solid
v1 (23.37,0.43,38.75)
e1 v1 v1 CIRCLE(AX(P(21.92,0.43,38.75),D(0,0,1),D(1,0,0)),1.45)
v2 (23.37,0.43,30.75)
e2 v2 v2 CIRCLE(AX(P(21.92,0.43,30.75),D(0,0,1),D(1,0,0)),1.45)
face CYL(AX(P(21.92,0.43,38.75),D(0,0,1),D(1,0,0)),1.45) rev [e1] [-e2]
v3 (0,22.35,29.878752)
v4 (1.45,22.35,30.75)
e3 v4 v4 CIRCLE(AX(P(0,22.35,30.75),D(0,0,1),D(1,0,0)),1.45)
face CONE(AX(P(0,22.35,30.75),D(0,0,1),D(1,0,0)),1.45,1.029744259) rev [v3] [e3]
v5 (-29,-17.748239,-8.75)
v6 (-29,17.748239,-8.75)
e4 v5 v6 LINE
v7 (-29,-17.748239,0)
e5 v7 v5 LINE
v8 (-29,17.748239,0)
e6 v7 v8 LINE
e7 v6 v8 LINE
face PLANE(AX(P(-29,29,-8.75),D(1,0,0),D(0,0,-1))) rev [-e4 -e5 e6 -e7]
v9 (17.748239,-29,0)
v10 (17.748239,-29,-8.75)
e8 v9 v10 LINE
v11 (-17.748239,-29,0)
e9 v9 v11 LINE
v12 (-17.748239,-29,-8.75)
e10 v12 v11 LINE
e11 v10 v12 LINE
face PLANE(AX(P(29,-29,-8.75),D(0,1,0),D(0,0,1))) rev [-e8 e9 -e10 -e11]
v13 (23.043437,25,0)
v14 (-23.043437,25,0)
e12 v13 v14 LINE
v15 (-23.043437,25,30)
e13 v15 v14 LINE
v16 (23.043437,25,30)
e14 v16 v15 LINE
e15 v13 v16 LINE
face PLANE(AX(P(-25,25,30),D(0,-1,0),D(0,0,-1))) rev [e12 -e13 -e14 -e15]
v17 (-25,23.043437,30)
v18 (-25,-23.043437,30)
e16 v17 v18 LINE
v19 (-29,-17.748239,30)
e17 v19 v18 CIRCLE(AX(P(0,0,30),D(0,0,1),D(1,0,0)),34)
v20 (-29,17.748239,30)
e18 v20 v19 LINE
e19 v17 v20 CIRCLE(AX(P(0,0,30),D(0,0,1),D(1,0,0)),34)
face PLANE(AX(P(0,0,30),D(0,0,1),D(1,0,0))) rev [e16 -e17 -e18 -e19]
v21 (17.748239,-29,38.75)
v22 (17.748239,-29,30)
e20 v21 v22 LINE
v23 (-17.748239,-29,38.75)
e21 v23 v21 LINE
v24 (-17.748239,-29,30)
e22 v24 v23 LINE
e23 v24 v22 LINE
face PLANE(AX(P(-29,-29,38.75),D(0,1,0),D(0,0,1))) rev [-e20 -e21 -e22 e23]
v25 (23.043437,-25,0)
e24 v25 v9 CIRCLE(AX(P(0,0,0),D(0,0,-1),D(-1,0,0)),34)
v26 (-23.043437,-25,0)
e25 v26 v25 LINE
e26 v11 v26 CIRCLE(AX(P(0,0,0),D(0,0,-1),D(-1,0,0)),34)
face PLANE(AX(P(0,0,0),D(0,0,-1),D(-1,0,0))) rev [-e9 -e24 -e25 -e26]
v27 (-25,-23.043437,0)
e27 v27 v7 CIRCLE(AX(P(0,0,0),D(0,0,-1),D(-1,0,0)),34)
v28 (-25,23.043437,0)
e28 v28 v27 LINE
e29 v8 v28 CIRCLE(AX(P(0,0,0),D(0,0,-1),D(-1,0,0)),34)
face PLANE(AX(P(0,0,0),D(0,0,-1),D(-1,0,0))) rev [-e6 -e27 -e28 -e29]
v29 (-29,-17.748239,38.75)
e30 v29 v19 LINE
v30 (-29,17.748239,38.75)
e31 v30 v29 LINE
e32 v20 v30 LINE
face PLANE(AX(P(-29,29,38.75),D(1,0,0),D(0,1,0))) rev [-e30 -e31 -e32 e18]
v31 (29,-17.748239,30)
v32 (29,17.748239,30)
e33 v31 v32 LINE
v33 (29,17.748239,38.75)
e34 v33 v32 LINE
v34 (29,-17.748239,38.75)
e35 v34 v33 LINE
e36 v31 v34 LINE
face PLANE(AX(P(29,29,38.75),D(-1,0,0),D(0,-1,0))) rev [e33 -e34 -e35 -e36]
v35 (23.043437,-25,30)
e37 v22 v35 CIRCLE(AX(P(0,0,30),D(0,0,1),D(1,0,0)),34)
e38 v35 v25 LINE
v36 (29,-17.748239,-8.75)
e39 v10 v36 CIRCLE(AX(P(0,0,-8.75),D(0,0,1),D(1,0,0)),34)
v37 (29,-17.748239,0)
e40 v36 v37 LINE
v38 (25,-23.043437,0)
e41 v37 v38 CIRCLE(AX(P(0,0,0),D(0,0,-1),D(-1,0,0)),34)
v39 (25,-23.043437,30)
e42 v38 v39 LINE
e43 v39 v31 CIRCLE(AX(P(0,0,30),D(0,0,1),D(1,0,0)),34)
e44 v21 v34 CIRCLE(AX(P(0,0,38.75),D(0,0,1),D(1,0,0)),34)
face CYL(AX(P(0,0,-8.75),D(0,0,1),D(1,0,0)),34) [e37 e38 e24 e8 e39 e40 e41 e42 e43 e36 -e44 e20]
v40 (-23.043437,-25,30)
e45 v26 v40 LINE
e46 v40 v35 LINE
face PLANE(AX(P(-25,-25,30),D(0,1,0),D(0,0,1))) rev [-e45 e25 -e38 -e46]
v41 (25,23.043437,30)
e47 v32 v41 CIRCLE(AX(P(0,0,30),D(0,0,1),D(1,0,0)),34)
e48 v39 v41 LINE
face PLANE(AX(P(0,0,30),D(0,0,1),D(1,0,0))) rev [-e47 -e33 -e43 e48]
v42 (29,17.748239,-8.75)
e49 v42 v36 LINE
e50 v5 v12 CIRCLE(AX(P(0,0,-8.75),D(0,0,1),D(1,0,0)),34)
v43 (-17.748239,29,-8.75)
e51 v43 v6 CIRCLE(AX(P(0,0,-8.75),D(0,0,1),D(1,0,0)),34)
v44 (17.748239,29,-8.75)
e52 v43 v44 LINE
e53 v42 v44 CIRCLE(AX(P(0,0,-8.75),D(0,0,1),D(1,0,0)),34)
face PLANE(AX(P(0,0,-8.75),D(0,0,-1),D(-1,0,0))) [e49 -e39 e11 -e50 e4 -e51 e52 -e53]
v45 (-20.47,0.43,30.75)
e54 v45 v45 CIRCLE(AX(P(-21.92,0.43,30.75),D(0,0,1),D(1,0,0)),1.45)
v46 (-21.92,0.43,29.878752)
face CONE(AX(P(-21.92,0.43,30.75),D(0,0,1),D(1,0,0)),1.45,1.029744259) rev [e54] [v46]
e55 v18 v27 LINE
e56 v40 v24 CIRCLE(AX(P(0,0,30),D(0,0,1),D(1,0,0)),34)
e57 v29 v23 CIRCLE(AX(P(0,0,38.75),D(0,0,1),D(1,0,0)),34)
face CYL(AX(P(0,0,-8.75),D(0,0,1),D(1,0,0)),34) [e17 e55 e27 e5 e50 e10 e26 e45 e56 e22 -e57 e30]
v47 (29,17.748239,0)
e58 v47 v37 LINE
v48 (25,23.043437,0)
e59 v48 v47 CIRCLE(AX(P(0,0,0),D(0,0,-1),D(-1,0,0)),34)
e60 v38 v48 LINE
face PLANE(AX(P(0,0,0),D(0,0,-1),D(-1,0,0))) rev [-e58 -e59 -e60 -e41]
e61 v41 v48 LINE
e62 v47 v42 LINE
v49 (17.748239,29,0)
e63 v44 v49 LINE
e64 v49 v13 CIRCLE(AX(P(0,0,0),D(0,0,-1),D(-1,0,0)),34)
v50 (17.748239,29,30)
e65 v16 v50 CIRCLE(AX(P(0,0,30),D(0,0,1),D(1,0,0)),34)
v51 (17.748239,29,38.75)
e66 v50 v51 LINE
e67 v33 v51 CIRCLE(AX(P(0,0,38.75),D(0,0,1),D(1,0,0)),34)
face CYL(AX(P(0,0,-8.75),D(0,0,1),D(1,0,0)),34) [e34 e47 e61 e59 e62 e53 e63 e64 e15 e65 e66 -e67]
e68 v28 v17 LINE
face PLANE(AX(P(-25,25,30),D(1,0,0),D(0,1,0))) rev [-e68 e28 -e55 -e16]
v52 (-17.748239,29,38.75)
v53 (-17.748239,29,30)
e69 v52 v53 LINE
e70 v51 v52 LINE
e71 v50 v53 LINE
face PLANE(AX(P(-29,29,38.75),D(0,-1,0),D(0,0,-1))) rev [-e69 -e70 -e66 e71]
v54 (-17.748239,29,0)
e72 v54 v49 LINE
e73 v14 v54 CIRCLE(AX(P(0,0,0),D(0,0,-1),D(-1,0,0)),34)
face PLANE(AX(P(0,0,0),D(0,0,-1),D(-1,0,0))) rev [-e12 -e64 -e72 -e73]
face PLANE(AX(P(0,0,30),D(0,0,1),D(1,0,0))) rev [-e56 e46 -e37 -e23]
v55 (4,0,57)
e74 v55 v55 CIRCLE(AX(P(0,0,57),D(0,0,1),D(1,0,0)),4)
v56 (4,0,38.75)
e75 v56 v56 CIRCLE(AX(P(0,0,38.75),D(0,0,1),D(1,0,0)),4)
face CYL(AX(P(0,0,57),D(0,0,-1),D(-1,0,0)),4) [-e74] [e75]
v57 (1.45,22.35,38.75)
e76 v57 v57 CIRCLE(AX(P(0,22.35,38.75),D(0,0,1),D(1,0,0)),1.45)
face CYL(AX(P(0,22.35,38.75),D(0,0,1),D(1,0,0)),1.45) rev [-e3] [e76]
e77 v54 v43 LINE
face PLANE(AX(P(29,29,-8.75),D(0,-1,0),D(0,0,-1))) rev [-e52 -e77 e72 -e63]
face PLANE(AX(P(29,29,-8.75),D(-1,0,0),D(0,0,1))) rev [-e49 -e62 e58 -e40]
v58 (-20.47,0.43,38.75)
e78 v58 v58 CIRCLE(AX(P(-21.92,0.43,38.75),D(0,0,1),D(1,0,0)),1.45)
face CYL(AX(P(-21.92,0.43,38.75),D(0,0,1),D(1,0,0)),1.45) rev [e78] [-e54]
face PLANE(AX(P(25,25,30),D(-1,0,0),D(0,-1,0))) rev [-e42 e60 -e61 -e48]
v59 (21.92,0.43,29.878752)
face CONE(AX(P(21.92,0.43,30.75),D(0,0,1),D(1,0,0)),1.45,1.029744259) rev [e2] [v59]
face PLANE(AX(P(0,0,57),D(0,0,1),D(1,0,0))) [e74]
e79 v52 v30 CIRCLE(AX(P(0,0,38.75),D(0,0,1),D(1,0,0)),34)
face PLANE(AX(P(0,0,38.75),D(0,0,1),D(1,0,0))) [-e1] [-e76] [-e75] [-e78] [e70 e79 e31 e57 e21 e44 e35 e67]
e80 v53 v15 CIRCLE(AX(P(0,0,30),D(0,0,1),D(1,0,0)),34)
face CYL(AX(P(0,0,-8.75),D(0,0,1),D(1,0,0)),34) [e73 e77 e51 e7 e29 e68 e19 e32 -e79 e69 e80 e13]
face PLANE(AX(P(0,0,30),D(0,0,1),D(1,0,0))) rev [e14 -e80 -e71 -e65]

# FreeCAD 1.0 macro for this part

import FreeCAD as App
import Part
import Sketcher
Q = App.Units.Quantity


def add_polygon(sketch, points):
    """Adds a closed chain of lines whose ends are joined by coincident constraints."""
    first, n = sketch.GeometryCount, len(points)
    for a, b in zip(points, points[1:] + points[:1]):
        sketch.addGeometry(Part.LineSegment(App.Vector(*a, 0), App.Vector(*b, 0)), False)
    for i in range(n):
        sketch.addConstraint(Sketcher.Constraint("Coincident", first + i, 2, first + (i + 1) % n, 1))

doc = App.newDocument("Part")
body = doc.addObject("PartDesign::Body", "Body")

# Sketch on XY plane
sketch1 = doc.addObject("Sketcher::SketchObject", "Sketch")
body.addObject(sketch1)
sketch1.AttachmentSupport = (doc.XY_Plane, [""])
sketch1.MapMode = "FlatFace"
add_polygon(sketch1, [(-25, 25), (-25, -25), (25, -25), (25, 25)])  # lines 0-3
sketch1.addConstraint([
    Sketcher.Constraint("Vertical", 0),
    Sketcher.Constraint("Horizontal", 1),
    Sketcher.Constraint("Vertical", 2),
    Sketcher.Constraint("Horizontal", 3),
    Sketcher.Constraint("Symmetric", 0, 2, 2, 2, -1, 1),
    Sketcher.Constraint("Equal", 3, 0),
    Sketcher.Constraint("DistanceX", 1, 1, 1, 2, Q("50 mm")),
])
pad1 = doc.addObject("PartDesign::Pad", "Pad")
body.addObject(pad1)
pad1.Profile = sketch1
pad1.Length = 30

# Sketch on XY plane
sketch2 = doc.addObject("Sketcher::SketchObject", "Sketch001")
body.addObject(sketch2)
sketch2.AttachmentSupport = (doc.XY_Plane, [""])
sketch2.MapMode = "FlatFace"
sketch2.AttachmentOffset = App.Placement(App.Vector(0, 0, 30), App.Rotation())
add_polygon(sketch2, [(-29, 29), (-29, -29), (29, -29), (29, 29)])  # lines 0-3
sketch2.addConstraint([
    Sketcher.Constraint("Vertical", 0),
    Sketcher.Constraint("Horizontal", 1),
    Sketcher.Constraint("Vertical", 2),
    Sketcher.Constraint("Horizontal", 3),
    Sketcher.Constraint("Symmetric", 0, 2, 2, 2, -1, 1),
    Sketcher.Constraint("Equal", 3, 0),
    Sketcher.Constraint("DistanceX", 1, 1, 1, 2, Q("58 mm")),
])
pad2 = doc.addObject("PartDesign::Pad", "Pad001")
body.addObject(pad2)
pad2.Profile = sketch2
pad2.Length = 8.75

# Sketch on XY plane
sketch3 = doc.addObject("Sketcher::SketchObject", "Sketch002")
body.addObject(sketch3)
sketch3.AttachmentSupport = (doc.XY_Plane, [""])
sketch3.MapMode = "FlatFace"
add_polygon(sketch3, [(29, 29), (29, -29), (-29, -29), (-29, 29)])  # lines 0-3
sketch3.addConstraint([
    Sketcher.Constraint("Vertical", 0),
    Sketcher.Constraint("Horizontal", 1),
    Sketcher.Constraint("Vertical", 2),
    Sketcher.Constraint("Horizontal", 3),
    Sketcher.Constraint("Symmetric", 0, 2, 2, 2, -1, 1),
    Sketcher.Constraint("Equal", 3, 0),
    Sketcher.Constraint("DistanceX", 1, 2, 1, 1, Q("58 mm")),
])
pad3 = doc.addObject("PartDesign::Pad", "Pad002")
body.addObject(pad3)
pad3.Profile = sketch3
pad3.Length = 8.75
pad3.Reversed = True

# Sketch on XY plane
sketch4 = doc.addObject("Sketcher::SketchObject", "Sketch003")
body.addObject(sketch4)
sketch4.AttachmentSupport = (doc.XY_Plane, [""])
sketch4.MapMode = "FlatFace"
sketch4.AttachmentOffset = App.Placement(App.Vector(0, 0, 38.75), App.Rotation())
sketch4.addGeometry(Part.Circle(App.Vector(0, 0, 0), App.Vector(0, 0, 1), 4), False)
sketch4.addConstraint([
    Sketcher.Constraint("Coincident", 0, 3, -1, 1),
    Sketcher.Constraint("Diameter", 0, Q("8 mm")),
])
pad4 = doc.addObject("PartDesign::Pad", "Pad003")
body.addObject(pad4)
pad4.Profile = sketch4
pad4.Length = 18.25

# Sketch on XY plane
sketch5 = doc.addObject("Sketcher::SketchObject", "Sketch004")
body.addObject(sketch5)
sketch5.AttachmentSupport = (doc.XY_Plane, [""])
sketch5.MapMode = "FlatFace"
sketch5.AttachmentOffset = App.Placement(App.Vector(0, 0, 38.75), App.Rotation())
add_polygon(sketch5, [(-41, 41), (-41, -41), (41, -41), (41, 41)])  # lines 0-3
sketch5.addGeometry(Part.Circle(App.Vector(0, 0, 0), App.Vector(0, 0, 1), 34), False)  # 4
sketch5.addConstraint([
    Sketcher.Constraint("Vertical", 0),
    Sketcher.Constraint("Horizontal", 1),
    Sketcher.Constraint("Vertical", 2),
    Sketcher.Constraint("Horizontal", 3),
    Sketcher.Constraint("Coincident", 4, 3, -1, 1),
    Sketcher.Constraint("Symmetric", 0, 2, 2, 2, -1, 1),
    Sketcher.Constraint("Equal", 3, 0),
    Sketcher.Constraint("Diameter", 4, Q("68 mm")),
    Sketcher.Constraint("DistanceX", 1, 1, 1, 2, Q("81.024 mm")),
])
pocket1 = doc.addObject("PartDesign::Pocket", "Pocket")
body.addObject(pocket1)
pocket1.Profile = sketch5
pocket1.Type = "ThroughAll"

# Sketch on XY plane
sketch6 = doc.addObject("Sketcher::SketchObject", "Sketch005")
body.addObject(sketch6)
sketch6.AttachmentSupport = (doc.XY_Plane, [""])
sketch6.MapMode = "FlatFace"
sketch6.AttachmentOffset = App.Placement(App.Vector(0, 0, 38.75), App.Rotation())
sketch6.addGeometry([
    Part.Circle(App.Vector(0, 22.4, 0), App.Vector(0, 0, 1), 1.4),
    Part.Circle(App.Vector(-21.9, 0.4, 0), App.Vector(0, 0, 1), 1.4),
    Part.Circle(App.Vector(21.9, 0.4, 0), App.Vector(0, 0, 1), 1.4),
], False)
sketch6.addConstraint([
    Sketcher.Constraint("Equal", 0, 1),
    Sketcher.Constraint("Equal", 1, 2),
    Sketcher.Constraint("Symmetric", 1, 3, 2, 3, -2),
    Sketcher.Constraint("PointOnObject", 0, 3, -2),
    Sketcher.Constraint("Diameter", 0, Q("2.9 mm")),
    Sketcher.Constraint("DistanceY", -1, 1, 0, 3, Q("22.35 mm")),
    Sketcher.Constraint("DistanceX", 1, 3, -1, 1, Q("21.92 mm")),
    Sketcher.Constraint("DistanceY", -1, 1, 1, 3, Q("0.43 mm")),
])
doc.recompute()
hole = doc.addObject("PartDesign::Hole", "Hole")
body.addObject(hole)
hole.Profile = sketch6
hole.ThreadType = "None"
hole.Diameter = 2.9
hole.DepthType = "Dimension"
hole.Depth = 8
hole.DrillPoint = "Angled"
hole.DrillPointAngle = 118

doc.recompute()
